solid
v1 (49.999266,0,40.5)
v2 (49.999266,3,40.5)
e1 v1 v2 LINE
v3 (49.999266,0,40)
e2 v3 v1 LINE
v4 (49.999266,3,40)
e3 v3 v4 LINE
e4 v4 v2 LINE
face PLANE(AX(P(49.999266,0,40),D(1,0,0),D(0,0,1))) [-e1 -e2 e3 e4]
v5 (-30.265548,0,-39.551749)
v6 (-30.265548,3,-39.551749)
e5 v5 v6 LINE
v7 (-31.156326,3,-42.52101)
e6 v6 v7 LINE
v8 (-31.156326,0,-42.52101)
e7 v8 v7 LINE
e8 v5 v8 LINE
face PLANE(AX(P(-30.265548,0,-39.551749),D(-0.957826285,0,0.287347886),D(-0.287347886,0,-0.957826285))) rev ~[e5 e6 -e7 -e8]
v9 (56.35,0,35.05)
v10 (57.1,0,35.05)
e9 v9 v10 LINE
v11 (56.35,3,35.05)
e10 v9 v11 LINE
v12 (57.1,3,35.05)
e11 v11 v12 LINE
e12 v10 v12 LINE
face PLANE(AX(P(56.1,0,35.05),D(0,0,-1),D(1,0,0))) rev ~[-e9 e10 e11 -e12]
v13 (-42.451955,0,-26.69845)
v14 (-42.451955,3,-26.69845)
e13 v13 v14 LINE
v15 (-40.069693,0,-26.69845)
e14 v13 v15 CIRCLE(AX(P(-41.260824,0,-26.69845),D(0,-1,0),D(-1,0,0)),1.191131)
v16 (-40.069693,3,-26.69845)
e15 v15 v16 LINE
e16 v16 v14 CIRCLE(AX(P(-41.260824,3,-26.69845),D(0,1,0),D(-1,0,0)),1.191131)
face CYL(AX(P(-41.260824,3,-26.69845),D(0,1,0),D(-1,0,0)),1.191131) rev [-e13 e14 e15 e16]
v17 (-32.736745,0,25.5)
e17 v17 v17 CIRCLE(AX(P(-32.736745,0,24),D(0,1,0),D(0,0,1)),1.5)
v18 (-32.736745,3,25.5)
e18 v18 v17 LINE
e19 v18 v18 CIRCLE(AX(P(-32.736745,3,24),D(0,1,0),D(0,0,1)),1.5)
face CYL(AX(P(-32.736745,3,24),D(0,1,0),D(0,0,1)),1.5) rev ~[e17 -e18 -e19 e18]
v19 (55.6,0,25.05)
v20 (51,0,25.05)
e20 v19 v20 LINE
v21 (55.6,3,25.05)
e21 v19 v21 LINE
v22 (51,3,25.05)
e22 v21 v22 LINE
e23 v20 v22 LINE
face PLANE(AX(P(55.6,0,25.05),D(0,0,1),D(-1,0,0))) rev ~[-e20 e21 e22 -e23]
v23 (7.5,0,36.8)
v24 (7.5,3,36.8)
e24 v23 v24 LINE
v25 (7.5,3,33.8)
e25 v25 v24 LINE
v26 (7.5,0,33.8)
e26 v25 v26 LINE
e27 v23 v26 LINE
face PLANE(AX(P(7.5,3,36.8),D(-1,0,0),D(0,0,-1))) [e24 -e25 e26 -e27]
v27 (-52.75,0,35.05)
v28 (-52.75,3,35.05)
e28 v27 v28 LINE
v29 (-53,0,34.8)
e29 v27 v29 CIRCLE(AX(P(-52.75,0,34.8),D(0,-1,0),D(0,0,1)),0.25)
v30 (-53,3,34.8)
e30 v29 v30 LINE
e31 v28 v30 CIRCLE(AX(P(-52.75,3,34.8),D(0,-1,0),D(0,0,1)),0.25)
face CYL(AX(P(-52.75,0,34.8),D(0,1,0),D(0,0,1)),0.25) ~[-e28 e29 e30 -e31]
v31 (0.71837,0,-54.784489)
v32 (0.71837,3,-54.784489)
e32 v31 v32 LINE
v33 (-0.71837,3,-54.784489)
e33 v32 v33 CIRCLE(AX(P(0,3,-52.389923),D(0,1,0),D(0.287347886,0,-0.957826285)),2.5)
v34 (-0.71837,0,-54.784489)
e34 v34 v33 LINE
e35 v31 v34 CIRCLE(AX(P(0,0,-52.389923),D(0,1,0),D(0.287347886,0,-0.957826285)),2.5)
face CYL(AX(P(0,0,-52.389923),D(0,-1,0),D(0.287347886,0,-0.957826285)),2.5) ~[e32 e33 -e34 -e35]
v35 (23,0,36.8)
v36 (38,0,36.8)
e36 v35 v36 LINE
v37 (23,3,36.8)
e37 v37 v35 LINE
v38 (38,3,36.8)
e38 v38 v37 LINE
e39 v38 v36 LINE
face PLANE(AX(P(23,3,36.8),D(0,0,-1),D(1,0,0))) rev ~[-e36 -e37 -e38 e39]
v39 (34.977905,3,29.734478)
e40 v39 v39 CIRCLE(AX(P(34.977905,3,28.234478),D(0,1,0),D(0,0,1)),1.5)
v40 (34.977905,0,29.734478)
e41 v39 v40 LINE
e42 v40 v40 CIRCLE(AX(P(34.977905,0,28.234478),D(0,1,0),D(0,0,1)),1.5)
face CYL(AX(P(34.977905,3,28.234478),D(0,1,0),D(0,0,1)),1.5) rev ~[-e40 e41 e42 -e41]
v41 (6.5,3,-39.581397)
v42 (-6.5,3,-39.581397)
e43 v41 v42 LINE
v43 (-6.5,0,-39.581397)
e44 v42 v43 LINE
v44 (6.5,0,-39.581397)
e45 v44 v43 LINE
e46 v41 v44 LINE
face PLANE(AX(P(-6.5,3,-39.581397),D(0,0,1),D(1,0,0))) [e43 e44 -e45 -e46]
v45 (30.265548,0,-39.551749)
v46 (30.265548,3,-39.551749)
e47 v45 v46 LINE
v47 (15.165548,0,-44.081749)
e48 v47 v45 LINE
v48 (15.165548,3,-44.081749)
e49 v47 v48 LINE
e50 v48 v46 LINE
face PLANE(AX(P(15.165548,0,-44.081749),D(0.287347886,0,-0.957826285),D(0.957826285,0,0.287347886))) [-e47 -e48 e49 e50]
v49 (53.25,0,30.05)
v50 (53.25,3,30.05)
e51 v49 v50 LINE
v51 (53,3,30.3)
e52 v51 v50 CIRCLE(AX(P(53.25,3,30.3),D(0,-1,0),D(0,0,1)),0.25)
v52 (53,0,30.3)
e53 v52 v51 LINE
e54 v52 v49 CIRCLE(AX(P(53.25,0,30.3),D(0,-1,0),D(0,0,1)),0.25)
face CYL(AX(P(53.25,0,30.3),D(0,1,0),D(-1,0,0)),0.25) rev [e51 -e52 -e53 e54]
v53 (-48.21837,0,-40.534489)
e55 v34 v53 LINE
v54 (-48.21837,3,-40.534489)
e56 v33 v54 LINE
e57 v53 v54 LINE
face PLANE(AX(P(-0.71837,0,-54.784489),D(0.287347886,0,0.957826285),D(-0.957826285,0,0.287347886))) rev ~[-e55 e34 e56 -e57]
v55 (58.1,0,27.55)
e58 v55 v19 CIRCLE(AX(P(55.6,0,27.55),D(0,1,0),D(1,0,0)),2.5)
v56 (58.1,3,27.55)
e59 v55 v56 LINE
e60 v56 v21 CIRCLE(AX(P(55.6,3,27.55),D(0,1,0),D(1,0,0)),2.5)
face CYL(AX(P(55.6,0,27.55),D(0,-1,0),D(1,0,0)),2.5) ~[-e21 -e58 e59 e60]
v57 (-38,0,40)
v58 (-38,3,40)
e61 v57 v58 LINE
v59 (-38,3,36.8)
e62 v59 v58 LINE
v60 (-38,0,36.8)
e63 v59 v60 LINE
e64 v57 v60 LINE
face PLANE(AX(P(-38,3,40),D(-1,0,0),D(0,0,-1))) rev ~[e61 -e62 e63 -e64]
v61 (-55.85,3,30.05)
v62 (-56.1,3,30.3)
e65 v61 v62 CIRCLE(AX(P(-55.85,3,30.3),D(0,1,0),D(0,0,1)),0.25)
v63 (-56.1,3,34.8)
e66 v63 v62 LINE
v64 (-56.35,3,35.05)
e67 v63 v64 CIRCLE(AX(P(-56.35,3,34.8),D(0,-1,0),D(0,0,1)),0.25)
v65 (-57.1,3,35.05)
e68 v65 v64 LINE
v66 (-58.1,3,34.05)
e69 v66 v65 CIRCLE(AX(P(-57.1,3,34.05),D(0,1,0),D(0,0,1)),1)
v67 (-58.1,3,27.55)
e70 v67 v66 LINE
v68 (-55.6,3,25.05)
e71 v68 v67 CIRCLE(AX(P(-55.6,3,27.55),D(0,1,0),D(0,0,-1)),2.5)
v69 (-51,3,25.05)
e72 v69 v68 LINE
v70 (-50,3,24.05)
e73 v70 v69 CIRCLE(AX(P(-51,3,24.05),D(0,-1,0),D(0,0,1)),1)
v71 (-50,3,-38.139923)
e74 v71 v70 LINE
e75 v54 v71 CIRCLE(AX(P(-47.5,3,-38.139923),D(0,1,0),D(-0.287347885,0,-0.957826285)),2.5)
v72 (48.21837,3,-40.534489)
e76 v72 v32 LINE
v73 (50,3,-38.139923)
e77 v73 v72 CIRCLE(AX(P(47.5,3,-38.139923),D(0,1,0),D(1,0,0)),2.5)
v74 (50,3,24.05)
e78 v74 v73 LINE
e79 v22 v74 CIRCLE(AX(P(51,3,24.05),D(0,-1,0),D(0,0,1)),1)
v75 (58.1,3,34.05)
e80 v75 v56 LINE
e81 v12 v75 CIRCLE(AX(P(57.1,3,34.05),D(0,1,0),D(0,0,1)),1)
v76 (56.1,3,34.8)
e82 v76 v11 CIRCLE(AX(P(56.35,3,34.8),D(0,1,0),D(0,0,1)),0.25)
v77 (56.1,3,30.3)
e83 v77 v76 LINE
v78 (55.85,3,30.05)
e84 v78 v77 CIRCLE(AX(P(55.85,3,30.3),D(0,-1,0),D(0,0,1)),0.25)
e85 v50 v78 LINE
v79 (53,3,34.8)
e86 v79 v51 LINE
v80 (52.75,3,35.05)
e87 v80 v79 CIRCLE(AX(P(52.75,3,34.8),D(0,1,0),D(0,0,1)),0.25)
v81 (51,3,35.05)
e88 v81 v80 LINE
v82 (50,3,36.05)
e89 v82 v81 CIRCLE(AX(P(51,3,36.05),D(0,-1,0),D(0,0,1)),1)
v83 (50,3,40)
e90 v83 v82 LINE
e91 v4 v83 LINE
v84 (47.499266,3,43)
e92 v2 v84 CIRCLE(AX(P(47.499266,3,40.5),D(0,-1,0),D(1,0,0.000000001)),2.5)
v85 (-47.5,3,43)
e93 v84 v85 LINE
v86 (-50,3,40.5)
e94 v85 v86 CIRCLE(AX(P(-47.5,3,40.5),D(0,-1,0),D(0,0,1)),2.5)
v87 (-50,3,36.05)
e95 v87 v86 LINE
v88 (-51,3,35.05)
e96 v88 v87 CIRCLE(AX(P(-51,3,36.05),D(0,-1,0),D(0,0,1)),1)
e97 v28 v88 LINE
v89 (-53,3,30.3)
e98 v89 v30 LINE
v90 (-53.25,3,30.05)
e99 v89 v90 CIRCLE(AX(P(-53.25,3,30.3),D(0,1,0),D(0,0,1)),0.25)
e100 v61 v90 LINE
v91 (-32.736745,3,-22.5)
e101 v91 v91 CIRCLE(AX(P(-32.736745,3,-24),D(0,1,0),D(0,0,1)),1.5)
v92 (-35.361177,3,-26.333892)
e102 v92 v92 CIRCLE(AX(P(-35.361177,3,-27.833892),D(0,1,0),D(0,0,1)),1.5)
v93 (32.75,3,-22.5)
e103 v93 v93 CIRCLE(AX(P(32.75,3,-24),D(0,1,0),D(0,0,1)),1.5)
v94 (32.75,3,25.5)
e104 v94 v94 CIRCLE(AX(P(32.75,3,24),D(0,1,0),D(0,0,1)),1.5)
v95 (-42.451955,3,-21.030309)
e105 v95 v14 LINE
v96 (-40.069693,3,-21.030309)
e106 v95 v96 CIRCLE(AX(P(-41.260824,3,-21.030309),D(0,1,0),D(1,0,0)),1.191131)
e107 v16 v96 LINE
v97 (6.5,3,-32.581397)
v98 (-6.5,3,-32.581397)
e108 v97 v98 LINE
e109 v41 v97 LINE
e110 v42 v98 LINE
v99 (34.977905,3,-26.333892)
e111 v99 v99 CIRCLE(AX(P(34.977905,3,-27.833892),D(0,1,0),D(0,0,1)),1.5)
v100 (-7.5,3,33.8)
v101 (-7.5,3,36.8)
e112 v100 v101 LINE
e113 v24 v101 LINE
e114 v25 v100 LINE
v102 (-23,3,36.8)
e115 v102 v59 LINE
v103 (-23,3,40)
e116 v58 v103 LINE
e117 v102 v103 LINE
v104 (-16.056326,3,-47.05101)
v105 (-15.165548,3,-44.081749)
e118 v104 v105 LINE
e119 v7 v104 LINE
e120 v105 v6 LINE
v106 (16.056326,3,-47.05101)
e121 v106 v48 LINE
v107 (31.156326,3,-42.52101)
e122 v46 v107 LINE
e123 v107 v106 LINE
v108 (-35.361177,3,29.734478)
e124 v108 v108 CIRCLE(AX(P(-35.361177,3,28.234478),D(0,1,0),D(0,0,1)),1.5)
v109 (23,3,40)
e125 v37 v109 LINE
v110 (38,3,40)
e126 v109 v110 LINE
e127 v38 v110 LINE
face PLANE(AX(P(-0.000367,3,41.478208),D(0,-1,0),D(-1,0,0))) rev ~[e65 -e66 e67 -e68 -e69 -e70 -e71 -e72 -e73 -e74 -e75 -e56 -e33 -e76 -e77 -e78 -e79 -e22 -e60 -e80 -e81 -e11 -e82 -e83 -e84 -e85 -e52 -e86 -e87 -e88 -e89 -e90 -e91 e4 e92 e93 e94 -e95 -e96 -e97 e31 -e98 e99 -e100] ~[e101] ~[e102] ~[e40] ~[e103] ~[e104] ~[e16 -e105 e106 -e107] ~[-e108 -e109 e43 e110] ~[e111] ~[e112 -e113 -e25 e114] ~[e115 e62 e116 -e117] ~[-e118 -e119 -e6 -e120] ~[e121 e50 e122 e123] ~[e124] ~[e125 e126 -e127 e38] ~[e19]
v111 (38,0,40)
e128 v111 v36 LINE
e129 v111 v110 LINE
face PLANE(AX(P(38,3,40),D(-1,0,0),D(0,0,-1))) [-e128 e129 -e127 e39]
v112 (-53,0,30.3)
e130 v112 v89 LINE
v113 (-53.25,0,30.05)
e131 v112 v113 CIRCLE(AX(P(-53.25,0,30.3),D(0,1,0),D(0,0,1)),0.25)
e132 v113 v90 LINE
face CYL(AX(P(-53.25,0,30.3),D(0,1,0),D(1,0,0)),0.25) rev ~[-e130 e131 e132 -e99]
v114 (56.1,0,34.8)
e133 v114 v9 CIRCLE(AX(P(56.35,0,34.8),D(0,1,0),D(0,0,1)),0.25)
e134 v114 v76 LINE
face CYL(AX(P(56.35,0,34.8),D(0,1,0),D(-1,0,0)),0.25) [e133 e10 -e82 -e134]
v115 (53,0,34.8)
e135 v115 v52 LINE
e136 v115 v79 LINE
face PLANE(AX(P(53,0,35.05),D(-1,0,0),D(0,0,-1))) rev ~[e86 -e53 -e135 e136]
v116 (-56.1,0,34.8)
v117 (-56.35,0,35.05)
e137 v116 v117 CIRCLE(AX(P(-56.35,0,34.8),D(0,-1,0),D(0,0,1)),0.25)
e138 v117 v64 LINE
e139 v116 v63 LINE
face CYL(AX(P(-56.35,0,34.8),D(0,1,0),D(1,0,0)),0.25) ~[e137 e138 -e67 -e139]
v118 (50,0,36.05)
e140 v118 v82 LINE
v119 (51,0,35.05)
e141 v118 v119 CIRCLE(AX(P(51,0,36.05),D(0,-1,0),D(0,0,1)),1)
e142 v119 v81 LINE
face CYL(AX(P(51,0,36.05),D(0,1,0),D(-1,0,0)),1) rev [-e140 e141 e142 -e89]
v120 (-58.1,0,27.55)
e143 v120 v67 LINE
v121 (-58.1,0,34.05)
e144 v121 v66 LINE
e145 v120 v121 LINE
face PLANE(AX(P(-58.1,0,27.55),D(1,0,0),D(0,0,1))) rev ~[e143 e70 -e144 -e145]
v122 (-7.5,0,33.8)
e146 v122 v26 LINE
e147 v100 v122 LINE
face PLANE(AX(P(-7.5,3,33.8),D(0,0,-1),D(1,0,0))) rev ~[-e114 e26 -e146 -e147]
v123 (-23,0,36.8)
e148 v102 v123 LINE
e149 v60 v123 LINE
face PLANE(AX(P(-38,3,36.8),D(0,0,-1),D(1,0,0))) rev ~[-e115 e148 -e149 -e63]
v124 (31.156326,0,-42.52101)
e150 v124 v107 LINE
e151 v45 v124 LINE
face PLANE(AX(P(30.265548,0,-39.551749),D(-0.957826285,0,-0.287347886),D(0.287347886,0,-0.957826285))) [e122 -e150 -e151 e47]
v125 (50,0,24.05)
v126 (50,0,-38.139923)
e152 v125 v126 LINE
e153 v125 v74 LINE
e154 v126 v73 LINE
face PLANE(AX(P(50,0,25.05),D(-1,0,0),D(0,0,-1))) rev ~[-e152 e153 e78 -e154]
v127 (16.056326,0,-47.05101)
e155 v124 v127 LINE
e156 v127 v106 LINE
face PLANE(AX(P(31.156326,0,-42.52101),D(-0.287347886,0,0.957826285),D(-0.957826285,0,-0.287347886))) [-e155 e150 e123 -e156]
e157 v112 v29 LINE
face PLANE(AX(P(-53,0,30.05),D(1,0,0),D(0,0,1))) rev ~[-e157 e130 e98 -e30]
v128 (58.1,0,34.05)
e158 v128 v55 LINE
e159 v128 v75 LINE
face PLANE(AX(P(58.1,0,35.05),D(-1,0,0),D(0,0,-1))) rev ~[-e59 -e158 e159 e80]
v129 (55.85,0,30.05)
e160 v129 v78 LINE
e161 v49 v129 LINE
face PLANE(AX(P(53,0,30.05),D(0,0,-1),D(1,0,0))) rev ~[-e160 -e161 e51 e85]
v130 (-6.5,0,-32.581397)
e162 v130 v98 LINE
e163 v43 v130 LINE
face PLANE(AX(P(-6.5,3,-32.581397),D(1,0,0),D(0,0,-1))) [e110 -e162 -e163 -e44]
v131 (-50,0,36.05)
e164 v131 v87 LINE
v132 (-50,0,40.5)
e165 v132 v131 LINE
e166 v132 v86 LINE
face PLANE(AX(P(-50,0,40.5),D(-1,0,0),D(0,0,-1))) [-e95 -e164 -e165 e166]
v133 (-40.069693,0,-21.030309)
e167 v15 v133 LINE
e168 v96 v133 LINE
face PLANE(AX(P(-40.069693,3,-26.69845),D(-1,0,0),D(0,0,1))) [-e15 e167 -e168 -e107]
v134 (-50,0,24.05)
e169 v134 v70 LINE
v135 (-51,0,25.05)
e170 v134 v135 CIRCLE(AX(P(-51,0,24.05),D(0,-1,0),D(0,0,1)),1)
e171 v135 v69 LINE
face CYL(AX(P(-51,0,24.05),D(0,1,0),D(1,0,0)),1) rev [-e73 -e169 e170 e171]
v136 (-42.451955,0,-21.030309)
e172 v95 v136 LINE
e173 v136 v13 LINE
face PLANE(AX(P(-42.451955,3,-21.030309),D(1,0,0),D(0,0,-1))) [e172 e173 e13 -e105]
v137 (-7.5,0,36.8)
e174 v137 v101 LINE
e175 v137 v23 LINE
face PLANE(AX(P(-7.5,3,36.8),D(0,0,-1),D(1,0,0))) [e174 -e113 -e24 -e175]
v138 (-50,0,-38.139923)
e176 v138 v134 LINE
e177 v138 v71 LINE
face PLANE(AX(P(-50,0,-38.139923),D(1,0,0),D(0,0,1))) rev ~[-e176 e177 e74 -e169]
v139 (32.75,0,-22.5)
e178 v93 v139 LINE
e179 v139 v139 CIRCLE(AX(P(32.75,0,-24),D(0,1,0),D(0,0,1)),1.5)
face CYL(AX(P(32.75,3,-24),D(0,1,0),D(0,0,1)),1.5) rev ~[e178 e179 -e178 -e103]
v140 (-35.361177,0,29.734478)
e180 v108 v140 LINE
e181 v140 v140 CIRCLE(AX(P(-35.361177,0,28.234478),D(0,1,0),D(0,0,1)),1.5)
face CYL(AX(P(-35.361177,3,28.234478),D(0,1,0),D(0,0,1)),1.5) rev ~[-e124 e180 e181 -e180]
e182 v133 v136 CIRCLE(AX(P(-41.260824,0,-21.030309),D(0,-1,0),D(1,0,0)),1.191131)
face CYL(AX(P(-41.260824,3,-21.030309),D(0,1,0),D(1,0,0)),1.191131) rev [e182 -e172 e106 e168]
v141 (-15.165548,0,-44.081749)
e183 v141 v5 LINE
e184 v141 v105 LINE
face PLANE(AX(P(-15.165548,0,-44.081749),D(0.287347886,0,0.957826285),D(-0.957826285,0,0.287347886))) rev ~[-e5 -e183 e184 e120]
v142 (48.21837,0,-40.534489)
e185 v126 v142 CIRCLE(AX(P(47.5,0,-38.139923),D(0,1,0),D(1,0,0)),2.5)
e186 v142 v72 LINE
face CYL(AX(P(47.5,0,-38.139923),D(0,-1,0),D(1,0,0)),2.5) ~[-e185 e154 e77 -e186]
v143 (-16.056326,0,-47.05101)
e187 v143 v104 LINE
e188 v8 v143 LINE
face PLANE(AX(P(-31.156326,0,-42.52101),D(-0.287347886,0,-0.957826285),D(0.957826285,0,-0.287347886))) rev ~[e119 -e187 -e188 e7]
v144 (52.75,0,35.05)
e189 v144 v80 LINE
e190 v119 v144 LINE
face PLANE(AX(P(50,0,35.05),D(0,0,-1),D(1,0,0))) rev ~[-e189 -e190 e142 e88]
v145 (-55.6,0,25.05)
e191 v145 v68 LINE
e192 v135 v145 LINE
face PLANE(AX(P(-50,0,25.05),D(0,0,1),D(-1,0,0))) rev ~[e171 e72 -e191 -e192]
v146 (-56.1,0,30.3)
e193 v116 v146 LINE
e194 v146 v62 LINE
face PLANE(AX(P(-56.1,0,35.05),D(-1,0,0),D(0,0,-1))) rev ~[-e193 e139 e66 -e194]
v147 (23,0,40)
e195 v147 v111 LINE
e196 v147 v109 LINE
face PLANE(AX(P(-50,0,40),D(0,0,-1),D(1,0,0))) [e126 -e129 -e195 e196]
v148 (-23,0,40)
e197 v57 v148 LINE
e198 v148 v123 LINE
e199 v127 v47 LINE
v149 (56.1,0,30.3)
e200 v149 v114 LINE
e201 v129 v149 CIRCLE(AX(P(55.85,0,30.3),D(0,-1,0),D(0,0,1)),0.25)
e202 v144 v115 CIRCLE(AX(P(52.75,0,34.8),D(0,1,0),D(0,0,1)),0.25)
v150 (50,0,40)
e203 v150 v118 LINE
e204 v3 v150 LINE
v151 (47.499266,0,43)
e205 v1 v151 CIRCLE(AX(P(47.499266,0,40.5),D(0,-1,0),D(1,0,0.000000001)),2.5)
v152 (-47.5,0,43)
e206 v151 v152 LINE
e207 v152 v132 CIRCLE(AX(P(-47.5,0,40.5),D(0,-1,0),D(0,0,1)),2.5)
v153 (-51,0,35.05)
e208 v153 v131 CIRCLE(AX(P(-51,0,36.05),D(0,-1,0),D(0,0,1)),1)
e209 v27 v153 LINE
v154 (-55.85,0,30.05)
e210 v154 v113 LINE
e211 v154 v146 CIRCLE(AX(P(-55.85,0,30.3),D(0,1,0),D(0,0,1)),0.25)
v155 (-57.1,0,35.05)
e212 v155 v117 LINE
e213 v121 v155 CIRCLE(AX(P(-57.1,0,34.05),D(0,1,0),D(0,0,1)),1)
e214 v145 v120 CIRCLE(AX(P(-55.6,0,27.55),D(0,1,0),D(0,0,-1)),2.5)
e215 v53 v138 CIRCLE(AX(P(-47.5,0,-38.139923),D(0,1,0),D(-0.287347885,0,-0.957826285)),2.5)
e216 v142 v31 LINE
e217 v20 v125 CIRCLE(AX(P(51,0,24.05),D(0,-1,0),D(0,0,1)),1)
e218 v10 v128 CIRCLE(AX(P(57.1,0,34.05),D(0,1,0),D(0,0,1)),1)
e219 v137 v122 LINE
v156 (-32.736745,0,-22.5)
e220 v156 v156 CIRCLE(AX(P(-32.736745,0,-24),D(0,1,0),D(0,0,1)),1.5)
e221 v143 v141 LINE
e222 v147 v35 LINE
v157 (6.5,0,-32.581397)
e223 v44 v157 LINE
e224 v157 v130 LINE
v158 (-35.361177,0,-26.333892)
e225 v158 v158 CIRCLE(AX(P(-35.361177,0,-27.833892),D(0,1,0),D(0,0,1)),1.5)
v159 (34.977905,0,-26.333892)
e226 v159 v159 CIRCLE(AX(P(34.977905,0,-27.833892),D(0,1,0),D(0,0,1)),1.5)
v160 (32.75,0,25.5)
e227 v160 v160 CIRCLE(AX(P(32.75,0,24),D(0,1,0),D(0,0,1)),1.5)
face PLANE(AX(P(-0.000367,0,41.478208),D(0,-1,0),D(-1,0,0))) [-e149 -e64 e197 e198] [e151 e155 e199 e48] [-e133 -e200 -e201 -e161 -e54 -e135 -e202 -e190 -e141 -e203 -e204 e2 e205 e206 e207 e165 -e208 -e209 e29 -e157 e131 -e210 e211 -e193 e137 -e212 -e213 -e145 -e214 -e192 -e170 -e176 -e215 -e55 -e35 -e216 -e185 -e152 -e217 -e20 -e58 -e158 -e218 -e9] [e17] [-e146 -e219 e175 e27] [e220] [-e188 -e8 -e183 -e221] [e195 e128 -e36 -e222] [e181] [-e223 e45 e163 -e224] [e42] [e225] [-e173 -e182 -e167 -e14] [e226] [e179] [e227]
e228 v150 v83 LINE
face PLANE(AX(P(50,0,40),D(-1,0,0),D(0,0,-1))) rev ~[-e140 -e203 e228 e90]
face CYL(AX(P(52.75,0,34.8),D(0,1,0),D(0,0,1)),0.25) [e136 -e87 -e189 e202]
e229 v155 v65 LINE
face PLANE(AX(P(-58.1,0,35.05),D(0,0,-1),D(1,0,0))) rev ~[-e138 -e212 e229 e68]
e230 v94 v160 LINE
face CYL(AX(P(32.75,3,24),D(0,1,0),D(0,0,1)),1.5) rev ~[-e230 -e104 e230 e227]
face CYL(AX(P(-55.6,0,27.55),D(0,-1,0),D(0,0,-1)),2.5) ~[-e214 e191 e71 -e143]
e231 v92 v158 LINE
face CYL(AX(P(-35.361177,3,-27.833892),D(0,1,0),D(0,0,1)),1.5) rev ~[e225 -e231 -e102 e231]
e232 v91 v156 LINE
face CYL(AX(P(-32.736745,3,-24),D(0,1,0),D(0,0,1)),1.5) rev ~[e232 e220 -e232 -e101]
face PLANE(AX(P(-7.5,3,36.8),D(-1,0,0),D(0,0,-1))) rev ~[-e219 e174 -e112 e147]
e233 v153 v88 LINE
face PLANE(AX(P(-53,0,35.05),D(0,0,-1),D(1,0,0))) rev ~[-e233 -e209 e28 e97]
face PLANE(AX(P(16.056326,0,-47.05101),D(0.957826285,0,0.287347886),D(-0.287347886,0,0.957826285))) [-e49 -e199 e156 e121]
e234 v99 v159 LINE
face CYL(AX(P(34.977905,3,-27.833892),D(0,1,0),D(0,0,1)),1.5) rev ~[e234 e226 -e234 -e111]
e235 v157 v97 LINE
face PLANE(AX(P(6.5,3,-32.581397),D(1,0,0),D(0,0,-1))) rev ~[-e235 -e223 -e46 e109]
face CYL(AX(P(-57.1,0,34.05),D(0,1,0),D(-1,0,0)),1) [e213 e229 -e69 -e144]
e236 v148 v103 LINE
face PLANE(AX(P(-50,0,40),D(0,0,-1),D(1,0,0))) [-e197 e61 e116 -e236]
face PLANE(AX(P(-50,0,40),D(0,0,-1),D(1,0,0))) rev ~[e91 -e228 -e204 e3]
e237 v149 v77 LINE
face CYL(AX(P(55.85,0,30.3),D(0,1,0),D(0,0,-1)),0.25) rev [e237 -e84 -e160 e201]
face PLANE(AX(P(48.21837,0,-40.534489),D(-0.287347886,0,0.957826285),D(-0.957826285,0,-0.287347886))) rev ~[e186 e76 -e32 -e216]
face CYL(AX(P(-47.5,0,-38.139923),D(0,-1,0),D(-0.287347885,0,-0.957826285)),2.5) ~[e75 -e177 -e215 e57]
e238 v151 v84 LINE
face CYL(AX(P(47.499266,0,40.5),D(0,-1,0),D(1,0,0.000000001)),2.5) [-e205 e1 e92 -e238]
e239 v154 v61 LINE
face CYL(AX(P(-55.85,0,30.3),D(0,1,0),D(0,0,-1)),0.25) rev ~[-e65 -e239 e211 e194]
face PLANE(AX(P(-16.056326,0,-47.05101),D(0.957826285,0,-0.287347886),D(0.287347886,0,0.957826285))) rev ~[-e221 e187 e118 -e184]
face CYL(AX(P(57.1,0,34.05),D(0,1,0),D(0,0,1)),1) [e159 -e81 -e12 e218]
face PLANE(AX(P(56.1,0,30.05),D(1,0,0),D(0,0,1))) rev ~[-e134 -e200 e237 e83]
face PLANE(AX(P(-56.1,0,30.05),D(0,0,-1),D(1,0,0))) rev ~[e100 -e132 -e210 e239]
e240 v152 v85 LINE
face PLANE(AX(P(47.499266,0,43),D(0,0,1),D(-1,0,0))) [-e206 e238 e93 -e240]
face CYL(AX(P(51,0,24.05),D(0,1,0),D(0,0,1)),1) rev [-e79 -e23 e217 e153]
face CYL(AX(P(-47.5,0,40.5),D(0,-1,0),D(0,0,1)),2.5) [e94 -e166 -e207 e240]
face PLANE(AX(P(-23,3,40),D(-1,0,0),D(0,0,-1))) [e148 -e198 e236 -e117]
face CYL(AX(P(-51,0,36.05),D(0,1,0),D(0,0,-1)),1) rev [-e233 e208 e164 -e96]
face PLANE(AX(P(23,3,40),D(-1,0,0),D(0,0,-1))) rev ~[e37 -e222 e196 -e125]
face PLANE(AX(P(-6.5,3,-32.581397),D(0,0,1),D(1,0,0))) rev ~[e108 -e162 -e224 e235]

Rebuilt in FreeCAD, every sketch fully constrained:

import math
import FreeCAD as App
import Part
import Sketcher


def edges_at(feature, points):
    """Names of the edges that pass closest to the given points."""
    edges = feature.Shape.Edges
    near = lambda p: min(range(len(edges)), key=lambda i: edges[i].distToShape(Part.Vertex(*p))[0])
    return sorted({f"Edge{near(p) + 1}" for p in points})

doc = App.newDocument("Part")
body = doc.addObject("PartDesign::Body", "Body")

# Sketch on XZ plane
sketch1 = doc.addObject("Sketcher::SketchObject", "Sketch")
body.addObject(sketch1)
sketch1.AttachmentSupport = (doc.XZ_Plane, [""])
sketch1.MapMode = "FlatFace"
sketch1.addGeometry(Part.LineSegment(App.Vector(-50, 40, 0), App.Vector(50, 40, 0)), False)
sketch1.addGeometry(Part.LineSegment(App.Vector(50, 40, 0), App.Vector(50, 35, 0)), False)
sketch1.addGeometry(Part.LineSegment(App.Vector(50, 35, 0), App.Vector(53, 35, 0)), False)
sketch1.addGeometry(Part.LineSegment(App.Vector(53, 35, 0), App.Vector(53, 30.1, 0)), False)
sketch1.addGeometry(Part.LineSegment(App.Vector(53, 30.1, 0), App.Vector(56.1, 30.1, 0)), False)
sketch1.addGeometry(Part.LineSegment(App.Vector(56.1, 30.1, 0), App.Vector(56.1, 35, 0)), False)
sketch1.addGeometry(Part.LineSegment(App.Vector(56.1, 35, 0), App.Vector(58.1, 35, 0)), False)
sketch1.addGeometry(Part.LineSegment(App.Vector(58.1, 35, 0), App.Vector(58.1, 27.6, 0)), False)
sketch1.addGeometry(Part.ArcOfCircle(Part.Circle(App.Vector(55.6, 27.6, 0), App.Vector(0, 0, 1), 2.5), math.radians(-90), math.radians(0)), False)
sketch1.addGeometry(Part.LineSegment(App.Vector(55.6, 25.1, 0), App.Vector(50, 25.1, 0)), False)
sketch1.addGeometry(Part.LineSegment(App.Vector(50, 25.1, 0), App.Vector(50, -38.1, 0)), False)
sketch1.addGeometry(Part.ArcOfCircle(Part.Circle(App.Vector(47.5, -38.1, 0), App.Vector(0, 0, 1), 2.5), math.radians(-73), math.radians(0)), False)
sketch1.addGeometry(Part.LineSegment(App.Vector(48.2, -40.5, 0), App.Vector(0.7, -54.8, 0)), False)
sketch1.addGeometry(Part.ArcOfCircle(Part.Circle(App.Vector(0, -52.4, 0), App.Vector(0, 0, 1), 2.5), math.radians(-107), math.radians(-73)), False)
sketch1.addGeometry(Part.LineSegment(App.Vector(-0.7, -54.8, 0), App.Vector(-48.2, -40.5, 0)), False)
sketch1.addGeometry(Part.ArcOfCircle(Part.Circle(App.Vector(-47.5, -38.1, 0), App.Vector(0, 0, 1), 2.5), math.radians(180), math.radians(253)), False)
sketch1.addGeometry(Part.LineSegment(App.Vector(-50, -38.1, 0), App.Vector(-50, 25.1, 0)), False)
sketch1.addGeometry(Part.LineSegment(App.Vector(-50, 25.1, 0), App.Vector(-55.6, 25.1, 0)), False)
sketch1.addGeometry(Part.ArcOfCircle(Part.Circle(App.Vector(-55.6, 27.6, 0), App.Vector(0, 0, 1), 2.5), math.radians(180), math.radians(270)), False)
sketch1.addGeometry(Part.LineSegment(App.Vector(-58.1, 27.6, 0), App.Vector(-58.1, 35, 0)), False)
sketch1.addGeometry(Part.LineSegment(App.Vector(-58.1, 35, 0), App.Vector(-56.1, 35, 0)), False)
sketch1.addGeometry(Part.LineSegment(App.Vector(-56.1, 35, 0), App.Vector(-56.1, 30.1, 0)), False)
sketch1.addGeometry(Part.LineSegment(App.Vector(-56.1, 30.1, 0), App.Vector(-53, 30.1, 0)), False)
sketch1.addGeometry(Part.LineSegment(App.Vector(-53, 30.1, 0), App.Vector(-53, 35, 0)), False)
sketch1.addGeometry(Part.LineSegment(App.Vector(-53, 35, 0), App.Vector(-50, 35, 0)), False)
sketch1.addGeometry(Part.LineSegment(App.Vector(-50, 35, 0), App.Vector(-50, 40, 0)), False)
sketch1.addGeometry(Part.LineSegment(App.Vector(-30.3, -39.6, 0), App.Vector(-31.2, -42.5, 0)), False)
sketch1.addGeometry(Part.LineSegment(App.Vector(-31.2, -42.5, 0), App.Vector(-16.1, -47.1, 0)), False)
sketch1.addGeometry(Part.LineSegment(App.Vector(-16.1, -47.1, 0), App.Vector(-15.2, -44.1, 0)), False)
sketch1.addGeometry(Part.LineSegment(App.Vector(-15.2, -44.1, 0), App.Vector(-30.3, -39.6, 0)), False)
sketch1.addGeometry(Part.LineSegment(App.Vector(30.3, -39.6, 0), App.Vector(15.2, -44.1, 0)), False)
sketch1.addGeometry(Part.LineSegment(App.Vector(15.2, -44.1, 0), App.Vector(16.1, -47.1, 0)), False)
sketch1.addGeometry(Part.LineSegment(App.Vector(16.1, -47.1, 0), App.Vector(31.2, -42.5, 0)), False)
sketch1.addGeometry(Part.LineSegment(App.Vector(31.2, -42.5, 0), App.Vector(30.3, -39.6, 0)), False)
sketch1.addConstraint(Sketcher.Constraint("Coincident", 0, 2, 1, 1))
sketch1.addConstraint(Sketcher.Constraint("Coincident", 1, 2, 2, 1))
sketch1.addConstraint(Sketcher.Constraint("Coincident", 2, 2, 3, 1))
sketch1.addConstraint(Sketcher.Constraint("Coincident", 3, 2, 4, 1))
sketch1.addConstraint(Sketcher.Constraint("Coincident", 4, 2, 5, 1))
sketch1.addConstraint(Sketcher.Constraint("Coincident", 5, 2, 6, 1))
sketch1.addConstraint(Sketcher.Constraint("Coincident", 6, 2, 7, 1))
sketch1.addConstraint(Sketcher.Constraint("Tangent", 7, 2, 8, 2))
sketch1.addConstraint(Sketcher.Constraint("Tangent", 8, 1, 9, 1))
sketch1.addConstraint(Sketcher.Constraint("Coincident", 9, 2, 10, 1))
sketch1.addConstraint(Sketcher.Constraint("Tangent", 10, 2, 11, 2))
sketch1.addConstraint(Sketcher.Constraint("Tangent", 11, 1, 12, 1))
sketch1.addConstraint(Sketcher.Constraint("Tangent", 12, 2, 13, 2))
sketch1.addConstraint(Sketcher.Constraint("Tangent", 13, 1, 14, 1))
sketch1.addConstraint(Sketcher.Constraint("Tangent", 14, 2, 15, 2))
sketch1.addConstraint(Sketcher.Constraint("Tangent", 15, 1, 16, 1))
sketch1.addConstraint(Sketcher.Constraint("Coincident", 16, 2, 17, 1))
sketch1.addConstraint(Sketcher.Constraint("Tangent", 17, 2, 18, 2))
sketch1.addConstraint(Sketcher.Constraint("Tangent", 18, 1, 19, 1))
sketch1.addConstraint(Sketcher.Constraint("Coincident", 19, 2, 20, 1))
sketch1.addConstraint(Sketcher.Constraint("Coincident", 20, 2, 21, 1))
sketch1.addConstraint(Sketcher.Constraint("Coincident", 21, 2, 22, 1))
sketch1.addConstraint(Sketcher.Constraint("Coincident", 22, 2, 23, 1))
sketch1.addConstraint(Sketcher.Constraint("Coincident", 23, 2, 24, 1))
sketch1.addConstraint(Sketcher.Constraint("Coincident", 24, 2, 25, 1))
sketch1.addConstraint(Sketcher.Constraint("Coincident", 25, 2, 0, 1))
sketch1.addConstraint(Sketcher.Constraint("Coincident", 26, 2, 27, 1))
sketch1.addConstraint(Sketcher.Constraint("Coincident", 27, 2, 28, 1))
sketch1.addConstraint(Sketcher.Constraint("Coincident", 28, 2, 29, 1))
sketch1.addConstraint(Sketcher.Constraint("Coincident", 29, 2, 26, 1))
sketch1.addConstraint(Sketcher.Constraint("Coincident", 30, 2, 31, 1))
sketch1.addConstraint(Sketcher.Constraint("Coincident", 31, 2, 32, 1))
sketch1.addConstraint(Sketcher.Constraint("Coincident", 32, 2, 33, 1))
sketch1.addConstraint(Sketcher.Constraint("Coincident", 33, 2, 30, 1))
sketch1.addConstraint(Sketcher.Constraint("Horizontal", 0))
sketch1.addConstraint(Sketcher.Constraint("Vertical", 1))
sketch1.addConstraint(Sketcher.Constraint("Horizontal", 2))
sketch1.addConstraint(Sketcher.Constraint("Vertical", 3))
sketch1.addConstraint(Sketcher.Constraint("Horizontal", 4))
sketch1.addConstraint(Sketcher.Constraint("Vertical", 5))
sketch1.addConstraint(Sketcher.Constraint("Horizontal", 6))
sketch1.addConstraint(Sketcher.Constraint("Vertical", 7))
sketch1.addConstraint(Sketcher.Constraint("Horizontal", 9))
sketch1.addConstraint(Sketcher.Constraint("Vertical", 10))
sketch1.addConstraint(Sketcher.Constraint("Vertical", 16))
sketch1.addConstraint(Sketcher.Constraint("Horizontal", 17))
sketch1.addConstraint(Sketcher.Constraint("Vertical", 19))
sketch1.addConstraint(Sketcher.Constraint("Horizontal", 20))
sketch1.addConstraint(Sketcher.Constraint("Vertical", 21))
sketch1.addConstraint(Sketcher.Constraint("Horizontal", 22))
sketch1.addConstraint(Sketcher.Constraint("Vertical", 23))
sketch1.addConstraint(Sketcher.Constraint("Horizontal", 24))
sketch1.addConstraint(Sketcher.Constraint("Vertical", 25))
sketch1.addConstraint(Sketcher.Constraint("Equal", 8, 11))
sketch1.addConstraint(Sketcher.Constraint("Equal", 11, 13))
sketch1.addConstraint(Sketcher.Constraint("Equal", 13, 15))
sketch1.addConstraint(Sketcher.Constraint("Equal", 15, 18))
sketch1.addConstraint(Sketcher.Constraint("Symmetric", 11, 3, 15, 3, -2))
sketch1.addConstraint(Sketcher.Constraint("Symmetric", 8, 3, 18, 3, -2))
sketch1.addConstraint(Sketcher.Constraint("Symmetric", 5, 2, 20, 2, -2))
sketch1.addConstraint(Sketcher.Constraint("Symmetric", 3, 2, 22, 2, -2))
sketch1.addConstraint(Sketcher.Constraint("Symmetric", 1, 2, 24, 2, -2))
sketch1.addConstraint(Sketcher.Constraint("Symmetric", 28, 2, 30, 2, -2))
sketch1.addConstraint(Sketcher.Constraint("Symmetric", 27, 2, 31, 2, -2))
sketch1.addConstraint(Sketcher.Constraint("Symmetric", 26, 2, 32, 2, -2))
sketch1.addConstraint(Sketcher.Constraint("Symmetric", 29, 2, 33, 2, -2))
sketch1.addConstraint(Sketcher.Constraint("PointOnObject", 13, 3, -2))
sketch1.addConstraint(Sketcher.Constraint("Perpendicular", 14, 26))
sketch1.addConstraint(Sketcher.Constraint("Perpendicular", 26, 27))
sketch1.addConstraint(Sketcher.Constraint("Perpendicular", 27, 28))
sketch1.addConstraint(Sketcher.Constraint("Perpendicular", 28, 29))
sketch1.addConstraint(Sketcher.Constraint("Horizontal", 2, 2, 5, 2))
sketch1.addConstraint(Sketcher.Constraint("Vertical", 1, 2, 9, 2))
sketch1.addConstraint(Sketcher.Constraint("Radius", 8, 2.5))
sketch1.addConstraint(Sketcher.Constraint("DistanceX", 0, 1, 0, 2, 100.0))
sketch1.addConstraint(Sketcher.Constraint("DistanceX", 2, 1, 2, 2, 3.0))
sketch1.addConstraint(Sketcher.Constraint("DistanceX", 6, 1, 6, 2, 2.0))
sketch1.addConstraint(Sketcher.Constraint("DistanceY", 3, 2, 3, 1, 5.0))
sketch1.addConstraint(Sketcher.Constraint("DistanceX", 4, 1, 4, 2, 3.1))
sketch1.addConstraint(Sketcher.Constraint("DistanceY", 7, 2, 7, 1, 7.5))
sketch1.addConstraint(Sketcher.Constraint("DistanceY", -1, 1, 0, 2, 40.0))
sketch1.addConstraint(Sketcher.Constraint("Distance", 26, 3.1))
sketch1.addConstraint(Sketcher.Constraint("DistanceY", 1, 2, 1, 1, 4.95))
sketch1.addConstraint(Sketcher.Constraint("DistanceX", 26, 2, 27, 2, 15.1))
sketch1.addConstraint(Sketcher.Constraint("DistanceY", 13, 3, 11, 3, 14.25))
sketch1.addConstraint(Sketcher.Constraint("DistanceY", 10, 2, 10, 1, 63.189923))
sketch1.addConstraint(Sketcher.Constraint("DistanceY", 26, 2, -1, 1, 42.52101))
sketch1.addConstraint(Sketcher.Constraint("DistanceX", 26, 2, -1, 1, 31.156326))
pad1 = doc.addObject("PartDesign::Pad", "Pad")
body.addObject(pad1)
pad1.Profile = sketch1
pad1.Length = 3
pad1.Reversed = True

# Sketch on XZ plane
sketch2 = doc.addObject("Sketcher::SketchObject", "Sketch001")
body.addObject(sketch2)
sketch2.AttachmentSupport = (doc.XZ_Plane, [""])
sketch2.MapMode = "FlatFace"
sketch2.AttachmentOffset = App.Placement(App.Vector(0, 0, -3), App.Rotation())
sketch2.addGeometry(Part.Circle(App.Vector(32.8, -24, 0), App.Vector(0, 0, 1), 1.5), False)
sketch2.addGeometry(Part.Circle(App.Vector(-32.7, -24, 0), App.Vector(0, 0, 1), 1.5), False)
sketch2.addGeometry(Part.Circle(App.Vector(32.8, 24, 0), App.Vector(0, 0, 1), 1.5), False)
sketch2.addGeometry(Part.Circle(App.Vector(-32.7, 24, 0), App.Vector(0, 0, 1), 1.5), False)
sketch2.addGeometry(Part.LineSegment(App.Vector(-38, 36.8, 0), App.Vector(-38, 40, 0)), False)
sketch2.addGeometry(Part.LineSegment(App.Vector(-38, 40, 0), App.Vector(-23, 40, 0)), False)
sketch2.addGeometry(Part.LineSegment(App.Vector(-23, 40, 0), App.Vector(-23, 36.8, 0)), False)
sketch2.addGeometry(Part.LineSegment(App.Vector(-23, 36.8, 0), App.Vector(-38, 36.8, 0)), False)
sketch2.addGeometry(Part.LineSegment(App.Vector(23, 36.8, 0), App.Vector(23, 40, 0)), False)
sketch2.addGeometry(Part.LineSegment(App.Vector(23, 40, 0), App.Vector(38, 40, 0)), False)
sketch2.addGeometry(Part.LineSegment(App.Vector(38, 40, 0), App.Vector(38, 36.8, 0)), False)
sketch2.addGeometry(Part.LineSegment(App.Vector(38, 36.8, 0), App.Vector(23, 36.8, 0)), False)
sketch2.addGeometry(Part.LineSegment(App.Vector(-7.5, 33.8, 0), App.Vector(-7.5, 36.8, 0)), False)
sketch2.addGeometry(Part.LineSegment(App.Vector(-7.5, 36.8, 0), App.Vector(7.5, 36.8, 0)), False)
sketch2.addGeometry(Part.LineSegment(App.Vector(7.5, 36.8, 0), App.Vector(7.5, 33.8, 0)), False)
sketch2.addGeometry(Part.LineSegment(App.Vector(7.5, 33.8, 0), App.Vector(-7.5, 33.8, 0)), False)
sketch2.addGeometry(Part.LineSegment(App.Vector(-40.1, -21, 0), App.Vector(-40.1, -26.7, 0)), False)
sketch2.addGeometry(Part.ArcOfCircle(Part.Circle(App.Vector(-41.3, -26.7, 0), App.Vector(0, 0, 1), 1.2), math.radians(180), math.radians(360)), False)
sketch2.addGeometry(Part.LineSegment(App.Vector(-42.5, -26.7, 0), App.Vector(-42.5, -21, 0)), False)
sketch2.addGeometry(Part.ArcOfCircle(Part.Circle(App.Vector(-41.3, -21, 0), App.Vector(0, 0, 1), 1.2), math.radians(0), math.radians(180)), False)
sketch2.addConstraint(Sketcher.Constraint("Coincident", 4, 2, 5, 1))
sketch2.addConstraint(Sketcher.Constraint("Coincident", 5, 2, 6, 1))
sketch2.addConstraint(Sketcher.Constraint("Coincident", 6, 2, 7, 1))
sketch2.addConstraint(Sketcher.Constraint("Coincident", 7, 2, 4, 1))
sketch2.addConstraint(Sketcher.Constraint("Coincident", 8, 2, 9, 1))
sketch2.addConstraint(Sketcher.Constraint("Coincident", 9, 2, 10, 1))
sketch2.addConstraint(Sketcher.Constraint("Coincident", 10, 2, 11, 1))
sketch2.addConstraint(Sketcher.Constraint("Coincident", 11, 2, 8, 1))
sketch2.addConstraint(Sketcher.Constraint("Coincident", 12, 2, 13, 1))
sketch2.addConstraint(Sketcher.Constraint("Coincident", 13, 2, 14, 1))
sketch2.addConstraint(Sketcher.Constraint("Coincident", 14, 2, 15, 1))
sketch2.addConstraint(Sketcher.Constraint("Coincident", 15, 2, 12, 1))
sketch2.addConstraint(Sketcher.Constraint("Tangent", 16, 2, 17, 2))
sketch2.addConstraint(Sketcher.Constraint("Tangent", 17, 1, 18, 1))
sketch2.addConstraint(Sketcher.Constraint("Tangent", 18, 2, 19, 2))
sketch2.addConstraint(Sketcher.Constraint("Tangent", 19, 1, 16, 1))
sketch2.addConstraint(Sketcher.Constraint("Vertical", 4))
sketch2.addConstraint(Sketcher.Constraint("Horizontal", 5))
sketch2.addConstraint(Sketcher.Constraint("Vertical", 6))
sketch2.addConstraint(Sketcher.Constraint("Horizontal", 7))
sketch2.addConstraint(Sketcher.Constraint("Vertical", 8))
sketch2.addConstraint(Sketcher.Constraint("Horizontal", 9))
sketch2.addConstraint(Sketcher.Constraint("Vertical", 10))
sketch2.addConstraint(Sketcher.Constraint("Horizontal", 11))
sketch2.addConstraint(Sketcher.Constraint("Vertical", 12))
sketch2.addConstraint(Sketcher.Constraint("Horizontal", 13))
sketch2.addConstraint(Sketcher.Constraint("Vertical", 14))
sketch2.addConstraint(Sketcher.Constraint("Horizontal", 15))
sketch2.addConstraint(Sketcher.Constraint("Vertical", 16))
sketch2.addConstraint(Sketcher.Constraint("Vertical", 18))
sketch2.addConstraint(Sketcher.Constraint("Equal", 0, 1))
sketch2.addConstraint(Sketcher.Constraint("Equal", 1, 2))
sketch2.addConstraint(Sketcher.Constraint("Equal", 2, 3))
sketch2.addConstraint(Sketcher.Constraint("Symmetric", 5, 2, 8, 2, -2))
sketch2.addConstraint(Sketcher.Constraint("Symmetric", 7, 2, 10, 2, -2))
sketch2.addConstraint(Sketcher.Constraint("Symmetric", 0, 3, 2, 3, -1))
sketch2.addConstraint(Sketcher.Constraint("Symmetric", 1, 3, 3, 3, -1))
sketch2.addConstraint(Sketcher.Constraint("Horizontal", 0, 3, 1, 3))
sketch2.addConstraint(Sketcher.Constraint("Horizontal", 11, 2, 12, 2))
sketch2.addConstraint(Sketcher.Constraint("Equal", 11, 13))
sketch2.addConstraint(Sketcher.Constraint("Diameter", 0, 3.0))
sketch2.addConstraint(Sketcher.Constraint("DistanceX", 5, 1, 5, 2, 15.0))
sketch2.addConstraint(Sketcher.Constraint("DistanceY", 12, 1, 12, 2, 3.0))
sketch2.addConstraint(Sketcher.Constraint("DistanceY", 4, 1, 4, 2, 3.2))
sketch2.addConstraint(Sketcher.Constraint("DistanceY", 0, 3, -1, 1, 24.0))
sketch2.addConstraint(Sketcher.Constraint("DistanceX", 4, 2, -1, 1, 38.0))
sketch2.addConstraint(Sketcher.Constraint("DistanceY", -1, 1, 4, 2, 40.0))
sketch2.addConstraint(Sketcher.Constraint("DistanceX", 12, 2, -1, 1, 7.5))
sketch2.addConstraint(Sketcher.Constraint("DistanceX", -1, 1, 0, 3, 32.75))
sketch2.addConstraint(Sketcher.Constraint("Radius", 17, 1.191131))
sketch2.addConstraint(Sketcher.Constraint("DistanceY", 16, 2, 16, 1, 5.668141))
sketch2.addConstraint(Sketcher.Constraint("DistanceY", 17, 3, -1, 1, 26.69845))
sketch2.addConstraint(Sketcher.Constraint("DistanceX", 17, 3, 1, 3, 8.524079))
sketch2.addConstraint(Sketcher.Constraint("DistanceX", 1, 3, -1, 1, 32.736745))
pocket1 = doc.addObject("PartDesign::Pocket", "Pocket")
body.addObject(pocket1)
pocket1.Profile = sketch2
pocket1.Length = 6
pocket1.Midplane = True

# Sketch on XZ plane
sketch3 = doc.addObject("Sketcher::SketchObject", "Sketch002")
body.addObject(sketch3)
sketch3.AttachmentSupport = (doc.XZ_Plane, [""])
sketch3.MapMode = "FlatFace"
sketch3.addGeometry(Part.LineSegment(App.Vector(50, 40, 0), App.Vector(-50, 40, 0)), False)
sketch3.addGeometry(Part.LineSegment(App.Vector(-50, 40, 0), App.Vector(-50, 40.5, 0)), False)
sketch3.addGeometry(Part.ArcOfCircle(Part.Circle(App.Vector(-47.5, 40.5, 0), App.Vector(0, 0, 1), 2.5), math.radians(90), math.radians(180)), False)
sketch3.addGeometry(Part.LineSegment(App.Vector(-47.5, 43, 0), App.Vector(47.5, 43, 0)), False)
sketch3.addGeometry(Part.ArcOfCircle(Part.Circle(App.Vector(47.5, 40.5, 0), App.Vector(0, 0, 1), 2.5), math.radians(0), math.radians(90)), False)
sketch3.addGeometry(Part.LineSegment(App.Vector(50, 40.5, 0), App.Vector(50, 40, 0)), False)
sketch3.addConstraint(Sketcher.Constraint("Coincident", 0, 2, 1, 1))
sketch3.addConstraint(Sketcher.Constraint("Tangent", 1, 2, 2, 2))
sketch3.addConstraint(Sketcher.Constraint("Tangent", 2, 1, 3, 1))
sketch3.addConstraint(Sketcher.Constraint("Tangent", 3, 2, 4, 2))
sketch3.addConstraint(Sketcher.Constraint("Tangent", 4, 1, 5, 1))
sketch3.addConstraint(Sketcher.Constraint("Coincident", 5, 2, 0, 1))
sketch3.addConstraint(Sketcher.Constraint("Horizontal", 0))
sketch3.addConstraint(Sketcher.Constraint("Vertical", 1))
sketch3.addConstraint(Sketcher.Constraint("Horizontal", 3))
sketch3.addConstraint(Sketcher.Constraint("Vertical", 5))
sketch3.addConstraint(Sketcher.Constraint("Equal", 2, 4))
sketch3.addConstraint(Sketcher.Constraint("Radius", 2, 2.5))
sketch3.addConstraint(Sketcher.Constraint("DistanceY", 1, 1, 1, 2, 0.5))
sketch3.addConstraint(Sketcher.Constraint("DistanceX", 0, 2, -1, 1, 50.0))
sketch3.addConstraint(Sketcher.Constraint("DistanceY", -1, 1, 0, 2, 40.0))
sketch3.addConstraint(Sketcher.Constraint("DistanceX", 0, 2, 0, 1, 99.999266))
pad2 = doc.addObject("PartDesign::Pad", "Pad001")
body.addObject(pad2)
pad2.Profile = sketch3
pad2.Length = 3
pad2.Reversed = True
doc.recompute()

fillet = doc.addObject("PartDesign::Fillet", "Fillet")
body.addObject(fillet)
fillet.Base = (pad2, edges_at(pad2, [
    (-50, 1.5, 35.05),
    (-58.1, 1.5, 35.05),
    (-50, 1.5, 25.05),
    (50, 1.5, 25.05),
    (58.1, 1.5, 35.05),
    (50, 1.5, 35.05),
]))
fillet.Radius = 1
doc.recompute()

fillet2 = doc.addObject("PartDesign::Fillet", "Fillet001")
body.addObject(fillet2)
fillet2.Base = (fillet, edges_at(fillet, [
    (-53, 1.5, 35.05),
    (-53, 1.5, 30.05),
    (-56.1, 1.5, 30.05),
    (-56.1, 1.5, 35.05),
    (56.1, 1.5, 35.05),
    (56.1, 1.5, 30.05),
    (53, 1.5, 30.05),
    (53, 1.5, 35.05),
]))
fillet2.Radius = 0.25

# Sketch on XZ plane
sketch4 = doc.addObject("Sketcher::SketchObject", "Sketch003")
body.addObject(sketch4)
sketch4.AttachmentSupport = (doc.XZ_Plane, [""])
sketch4.MapMode = "FlatFace"
sketch4.AttachmentOffset = App.Placement(App.Vector(0, 0, -3), App.Rotation())
sketch4.addGeometry(Part.Circle(App.Vector(-35.4, -27.8, 0), App.Vector(0, 0, 1), 1.5), False)
sketch4.addGeometry(Part.Circle(App.Vector(35, -27.8, 0), App.Vector(0, 0, 1), 1.5), False)
sketch4.addGeometry(Part.Circle(App.Vector(35, 28.2, 0), App.Vector(0, 0, 1), 1.5), False)
sketch4.addGeometry(Part.Circle(App.Vector(-35.4, 28.2, 0), App.Vector(0, 0, 1), 1.5), False)
sketch4.addGeometry(Part.LineSegment(App.Vector(-6.5, -39.6, 0), App.Vector(-6.5, -32.6, 0)), False)
sketch4.addGeometry(Part.LineSegment(App.Vector(-6.5, -32.6, 0), App.Vector(6.5, -32.6, 0)), False)
sketch4.addGeometry(Part.LineSegment(App.Vector(6.5, -32.6, 0), App.Vector(6.5, -39.6, 0)), False)
sketch4.addGeometry(Part.LineSegment(App.Vector(6.5, -39.6, 0), App.Vector(-6.5, -39.6, 0)), False)
sketch4.addConstraint(Sketcher.Constraint("Coincident", 4, 2, 5, 1))
sketch4.addConstraint(Sketcher.Constraint("Coincident", 5, 2, 6, 1))
sketch4.addConstraint(Sketcher.Constraint("Coincident", 6, 2, 7, 1))
sketch4.addConstraint(Sketcher.Constraint("Coincident", 7, 2, 4, 1))
sketch4.addConstraint(Sketcher.Constraint("Vertical", 4))
sketch4.addConstraint(Sketcher.Constraint("Horizontal", 5))
sketch4.addConstraint(Sketcher.Constraint("Vertical", 6))
sketch4.addConstraint(Sketcher.Constraint("Horizontal", 7))
sketch4.addConstraint(Sketcher.Constraint("Equal", 0, 1))
sketch4.addConstraint(Sketcher.Constraint("Equal", 1, 2))
sketch4.addConstraint(Sketcher.Constraint("Equal", 2, 3))
sketch4.addConstraint(Sketcher.Constraint("Horizontal", 0, 3, 1, 3))
sketch4.addConstraint(Sketcher.Constraint("Horizontal", 2, 3, 3, 3))
sketch4.addConstraint(Sketcher.Constraint("Vertical", 1, 3, 2, 3))
sketch4.addConstraint(Sketcher.Constraint("Vertical", 0, 3, 3, 3))
sketch4.addConstraint(Sketcher.Constraint("Diameter", 0, 3.0))
sketch4.addConstraint(Sketcher.Constraint("DistanceX", 5, 1, 5, 2, 13.0))
sketch4.addConstraint(Sketcher.Constraint("DistanceY", 4, 1, 4, 2, 7.0))
sketch4.addConstraint(Sketcher.Constraint("DistanceX", 4, 2, -1, 1, 6.5))
sketch4.addConstraint(Sketcher.Constraint("DistanceX", 0, 3, 1, 3, 70.339082))
sketch4.addConstraint(Sketcher.Constraint("DistanceY", 1, 3, 2, 3, 56.06837))
sketch4.addConstraint(Sketcher.Constraint("DistanceX", 0, 3, -1, 1, 35.361177))
sketch4.addConstraint(Sketcher.Constraint("DistanceY", 0, 3, -1, 1, 27.833892))
sketch4.addConstraint(Sketcher.Constraint("DistanceY", 4, 2, -1, 1, 32.581397))
pocket2 = doc.addObject("PartDesign::Pocket", "Pocket001")
body.addObject(pocket2)
pocket2.Profile = sketch4
pocket2.Length = 10
pocket2.Midplane = True

doc.recompute()
